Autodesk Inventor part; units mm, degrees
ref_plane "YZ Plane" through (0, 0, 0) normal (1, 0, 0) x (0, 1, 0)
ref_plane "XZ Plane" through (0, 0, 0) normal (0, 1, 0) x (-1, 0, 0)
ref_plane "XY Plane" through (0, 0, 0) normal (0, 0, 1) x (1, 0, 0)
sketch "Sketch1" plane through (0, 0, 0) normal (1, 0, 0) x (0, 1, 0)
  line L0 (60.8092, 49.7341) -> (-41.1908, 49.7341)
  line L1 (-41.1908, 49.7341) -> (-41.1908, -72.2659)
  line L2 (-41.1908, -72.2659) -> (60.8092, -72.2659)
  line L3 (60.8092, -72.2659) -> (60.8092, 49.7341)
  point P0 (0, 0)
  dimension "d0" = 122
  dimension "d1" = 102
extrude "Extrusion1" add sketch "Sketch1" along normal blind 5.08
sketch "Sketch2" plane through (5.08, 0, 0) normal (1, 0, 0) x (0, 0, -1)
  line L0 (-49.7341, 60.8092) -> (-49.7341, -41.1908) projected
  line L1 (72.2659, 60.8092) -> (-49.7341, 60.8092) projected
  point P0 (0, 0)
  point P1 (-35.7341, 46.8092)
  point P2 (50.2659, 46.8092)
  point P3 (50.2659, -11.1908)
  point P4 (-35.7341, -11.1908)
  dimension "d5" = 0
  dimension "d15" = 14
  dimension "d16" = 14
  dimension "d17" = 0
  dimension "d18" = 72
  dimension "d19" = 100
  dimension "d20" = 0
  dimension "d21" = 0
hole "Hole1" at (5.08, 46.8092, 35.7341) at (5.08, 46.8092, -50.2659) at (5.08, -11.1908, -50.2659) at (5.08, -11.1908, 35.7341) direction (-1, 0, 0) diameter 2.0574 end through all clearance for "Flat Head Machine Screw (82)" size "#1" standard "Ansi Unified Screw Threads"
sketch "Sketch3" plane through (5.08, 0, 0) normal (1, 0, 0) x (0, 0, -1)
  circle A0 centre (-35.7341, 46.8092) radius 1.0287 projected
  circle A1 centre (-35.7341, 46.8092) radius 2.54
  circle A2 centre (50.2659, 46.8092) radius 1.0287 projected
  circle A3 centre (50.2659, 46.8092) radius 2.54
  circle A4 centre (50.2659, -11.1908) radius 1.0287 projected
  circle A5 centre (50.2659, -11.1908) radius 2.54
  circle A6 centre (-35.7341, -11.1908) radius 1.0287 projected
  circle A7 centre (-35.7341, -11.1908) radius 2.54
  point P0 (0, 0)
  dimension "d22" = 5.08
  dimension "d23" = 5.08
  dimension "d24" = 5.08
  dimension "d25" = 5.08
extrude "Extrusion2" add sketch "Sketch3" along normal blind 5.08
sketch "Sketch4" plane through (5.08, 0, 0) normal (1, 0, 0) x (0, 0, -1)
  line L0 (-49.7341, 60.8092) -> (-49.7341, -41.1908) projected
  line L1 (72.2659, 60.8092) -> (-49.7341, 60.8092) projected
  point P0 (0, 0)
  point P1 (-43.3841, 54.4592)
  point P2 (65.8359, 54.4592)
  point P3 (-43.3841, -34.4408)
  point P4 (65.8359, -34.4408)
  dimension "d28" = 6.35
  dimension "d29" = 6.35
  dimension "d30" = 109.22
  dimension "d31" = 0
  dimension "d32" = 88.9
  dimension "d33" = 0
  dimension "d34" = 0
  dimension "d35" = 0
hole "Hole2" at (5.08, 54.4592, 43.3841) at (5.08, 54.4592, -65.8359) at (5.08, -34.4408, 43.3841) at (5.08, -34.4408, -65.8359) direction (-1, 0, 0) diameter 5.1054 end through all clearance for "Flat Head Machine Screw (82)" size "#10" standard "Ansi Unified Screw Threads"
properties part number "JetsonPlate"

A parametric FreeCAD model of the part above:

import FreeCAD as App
import Part
import Sketcher
Q = App.Units.Quantity

doc = App.newDocument("Part")
body = doc.addObject("PartDesign::Body", "Body")

# Sketch on YZ plane
sketch1 = body.newObject("Sketcher::SketchObject", "Sketch")
sketch1.AttachmentSupport = (doc.getObject("YZ_Plane"), [""])
sketch1.MapMode = "FlatFace"
sketch1.addGeometry([
    Part.LineSegment(App.Vector(61, -72, 0), App.Vector(61, 50, 0)),
    Part.LineSegment(App.Vector(61, 50, 0), App.Vector(-41, 50, 0)),
    Part.LineSegment(App.Vector(-41, 50, 0), App.Vector(-41, -72, 0)),
    Part.LineSegment(App.Vector(-41, -72, 0), App.Vector(61, -72, 0)),
], False)
sketch1.addConstraint([
    Sketcher.Constraint("Coincident", 0, 2, 1, 1),
    Sketcher.Constraint("Coincident", 1, 2, 2, 1),
    Sketcher.Constraint("Coincident", 2, 2, 3, 1),
    Sketcher.Constraint("Coincident", 3, 2, 0, 1),
    Sketcher.Constraint("Vertical", 0),
    Sketcher.Constraint("Horizontal", 1),
    Sketcher.Constraint("Vertical", 2),
    Sketcher.Constraint("Horizontal", 3),
    Sketcher.Constraint("DistanceX", 1, 2, 1, 1, Q("102 mm")),
    Sketcher.Constraint("DistanceY", 0, 1, 0, 2, Q("122 mm")),
    Sketcher.Constraint("DistanceX", -1, 1, 0, 2, Q("60.8092 mm")),
    Sketcher.Constraint("DistanceY", -1, 1, 0, 2, Q("49.734 mm")),
])
pad1 = body.newObject("PartDesign::Pad", "Pad")
pad1.Profile = sketch1
pad1.Length = Q("0.2 in")

# Sketch on YZ plane
sketch2 = body.newObject("Sketcher::SketchObject", "Sketch001")
sketch2.AttachmentSupport = (doc.getObject("YZ_Plane"), [""])
sketch2.MapMode = "FlatFace"
sketch2.AttachmentOffset = App.Placement(App.Vector(0, 0, 0.2 * 25.4), App.Rotation())
sketch2.addGeometry([
    Part.Circle(App.Vector(46.8, 35.7, 0), App.Vector(0, 0, 1), 1),
    Part.Circle(App.Vector(46.8, -50.3, 0), App.Vector(0, 0, 1), 1),
    Part.Circle(App.Vector(-11.2, -50.3, 0), App.Vector(0, 0, 1), 1),
    Part.Circle(App.Vector(-11.2, 35.7, 0), App.Vector(0, 0, 1), 1),
], False)
sketch2.addConstraint([
    Sketcher.Constraint("Equal", 0, 1),
    Sketcher.Constraint("Equal", 1, 2),
    Sketcher.Constraint("Equal", 2, 3),
    Sketcher.Constraint("Horizontal", 1, 3, 2, 3),
    Sketcher.Constraint("Horizontal", 0, 3, 3, 3),
    Sketcher.Constraint("Vertical", 0, 3, 1, 3),
    Sketcher.Constraint("Vertical", 2, 3, 3, 3),
    Sketcher.Constraint("Diameter", 0, Q("0.081 in")),
    Sketcher.Constraint("DistanceX", -1, 1, 0, 3, Q("46.8092 mm")),
    Sketcher.Constraint("DistanceY", -1, 1, 0, 3, Q("35.734 mm")),
    Sketcher.Constraint("DistanceY", 1, 3, -1, 1, Q("50.266 mm")),
    Sketcher.Constraint("DistanceX", 2, 3, -1, 1, Q("11.1908 mm")),
])
doc.recompute()
hole = body.newObject("PartDesign::Hole", "Hole")
hole.Profile = sketch2
hole.ThreadType = "None"
hole.Diameter = Q("0.081 in")
hole.DepthType = "ThroughAll"

# Sketch on YZ plane
sketch3 = body.newObject("Sketcher::SketchObject", "Sketch002")
sketch3.AttachmentSupport = (doc.getObject("YZ_Plane"), [""])
sketch3.MapMode = "FlatFace"
sketch3.AttachmentOffset = App.Placement(App.Vector(0, 0, 0.2 * 25.4), App.Rotation())
sketch3.addGeometry([
    Part.Circle(App.Vector(46.8, 35.7, 0), App.Vector(0, 0, 1), 2.5),  # 0
    Part.Circle(App.Vector(46.8, 35.7, 0), App.Vector(0, 0, 1), 1),  # 1
    Part.Circle(App.Vector(46.8, -50.3, 0), App.Vector(0, 0, 1), 2.5),  # 2
    Part.Circle(App.Vector(46.8, -50.3, 0), App.Vector(0, 0, 1), 1),  # 3
    Part.Circle(App.Vector(-11.2, -50.3, 0), App.Vector(0, 0, 1), 2.5),  # 4
    Part.Circle(App.Vector(-11.2, -50.3, 0), App.Vector(0, 0, 1), 1),  # 5
    Part.Circle(App.Vector(-11.2, 35.7, 0), App.Vector(0, 0, 1), 2.5),  # 6
    Part.Circle(App.Vector(-11.2, 35.7, 0), App.Vector(0, 0, 1), 1),  # 7
], False)
sketch3.addConstraint([
    Sketcher.Constraint("Coincident", 1, 3, 0, 3),
    Sketcher.Constraint("Coincident", 3, 3, 2, 3),
    Sketcher.Constraint("Coincident", 5, 3, 4, 3),
    Sketcher.Constraint("Coincident", 7, 3, 6, 3),
    Sketcher.Constraint("Equal", 0, 2),
    Sketcher.Constraint("Equal", 1, 3),
    Sketcher.Constraint("Equal", 2, 4),
    Sketcher.Constraint("Equal", 3, 5),
    Sketcher.Constraint("Equal", 4, 6),
    Sketcher.Constraint("Equal", 5, 7),
    Sketcher.Constraint("Horizontal", 3, 3, 4, 3),
    Sketcher.Constraint("Horizontal", 1, 3, 6, 3),
    Sketcher.Constraint("Vertical", 1, 3, 2, 3),
    Sketcher.Constraint("Vertical", 5, 3, 6, 3),
    Sketcher.Constraint("Diameter", 0, Q("0.2 in")),
    Sketcher.Constraint("Diameter", 1, Q("0.081 in")),
    Sketcher.Constraint("DistanceX", -1, 1, 0, 3, Q("46.8092 mm")),
    Sketcher.Constraint("DistanceY", -1, 1, 0, 3, Q("35.734 mm")),
    Sketcher.Constraint("DistanceY", 2, 3, -1, 1, Q("50.266 mm")),
    Sketcher.Constraint("DistanceX", 4, 3, -1, 1, Q("11.1908 mm")),
])
pad2 = body.newObject("PartDesign::Pad", "Pad001")
pad2.Profile = sketch3
pad2.Length = Q("0.2 in")

# Sketch on YZ plane
sketch4 = body.newObject("Sketcher::SketchObject", "Sketch003")
sketch4.AttachmentSupport = (doc.getObject("YZ_Plane"), [""])
sketch4.MapMode = "FlatFace"
sketch4.AttachmentOffset = App.Placement(App.Vector(0, 0, 0.2 * 25.4), App.Rotation())
sketch4.addGeometry([
    Part.Circle(App.Vector(54.5, 43.4, 0), App.Vector(0, 0, 1), 2.6),
    Part.Circle(App.Vector(54.5, -65.8, 0), App.Vector(0, 0, 1), 2.6),
    Part.Circle(App.Vector(-34.4, 43.4, 0), App.Vector(0, 0, 1), 2.6),
    Part.Circle(App.Vector(-34.4, -65.8, 0), App.Vector(0, 0, 1), 2.6),
], False)
sketch4.addConstraint([
    Sketcher.Constraint("Equal", 0, 1),
    Sketcher.Constraint("Equal", 1, 2),
    Sketcher.Constraint("Equal", 2, 3),
    Sketcher.Constraint("Horizontal", 0, 3, 2, 3),
    Sketcher.Constraint("Horizontal", 1, 3, 3, 3),
    Sketcher.Constraint("Vertical", 0, 3, 1, 3),
    Sketcher.Constraint("Vertical", 2, 3, 3, 3),
    Sketcher.Constraint("Diameter", 0, Q("0.201 in")),
    Sketcher.Constraint("DistanceY", 1, 3, 0, 3, Q("4.3 in")),
    Sketcher.Constraint("DistanceX", 2, 3, 0, 3, Q("3.5 in")),
    Sketcher.Constraint("DistanceX", -1, 1, 0, 3, Q("54.4592 mm")),
    Sketcher.Constraint("DistanceY", -1, 1, 0, 3, Q("43.384 mm")),
])
doc.recompute()
hole2 = body.newObject("PartDesign::Hole", "Hole001")
hole2.Profile = sketch4
hole2.ThreadType = "None"
hole2.Diameter = Q("0.201 in")
hole2.DepthType = "ThroughAll"

doc.recompute()
